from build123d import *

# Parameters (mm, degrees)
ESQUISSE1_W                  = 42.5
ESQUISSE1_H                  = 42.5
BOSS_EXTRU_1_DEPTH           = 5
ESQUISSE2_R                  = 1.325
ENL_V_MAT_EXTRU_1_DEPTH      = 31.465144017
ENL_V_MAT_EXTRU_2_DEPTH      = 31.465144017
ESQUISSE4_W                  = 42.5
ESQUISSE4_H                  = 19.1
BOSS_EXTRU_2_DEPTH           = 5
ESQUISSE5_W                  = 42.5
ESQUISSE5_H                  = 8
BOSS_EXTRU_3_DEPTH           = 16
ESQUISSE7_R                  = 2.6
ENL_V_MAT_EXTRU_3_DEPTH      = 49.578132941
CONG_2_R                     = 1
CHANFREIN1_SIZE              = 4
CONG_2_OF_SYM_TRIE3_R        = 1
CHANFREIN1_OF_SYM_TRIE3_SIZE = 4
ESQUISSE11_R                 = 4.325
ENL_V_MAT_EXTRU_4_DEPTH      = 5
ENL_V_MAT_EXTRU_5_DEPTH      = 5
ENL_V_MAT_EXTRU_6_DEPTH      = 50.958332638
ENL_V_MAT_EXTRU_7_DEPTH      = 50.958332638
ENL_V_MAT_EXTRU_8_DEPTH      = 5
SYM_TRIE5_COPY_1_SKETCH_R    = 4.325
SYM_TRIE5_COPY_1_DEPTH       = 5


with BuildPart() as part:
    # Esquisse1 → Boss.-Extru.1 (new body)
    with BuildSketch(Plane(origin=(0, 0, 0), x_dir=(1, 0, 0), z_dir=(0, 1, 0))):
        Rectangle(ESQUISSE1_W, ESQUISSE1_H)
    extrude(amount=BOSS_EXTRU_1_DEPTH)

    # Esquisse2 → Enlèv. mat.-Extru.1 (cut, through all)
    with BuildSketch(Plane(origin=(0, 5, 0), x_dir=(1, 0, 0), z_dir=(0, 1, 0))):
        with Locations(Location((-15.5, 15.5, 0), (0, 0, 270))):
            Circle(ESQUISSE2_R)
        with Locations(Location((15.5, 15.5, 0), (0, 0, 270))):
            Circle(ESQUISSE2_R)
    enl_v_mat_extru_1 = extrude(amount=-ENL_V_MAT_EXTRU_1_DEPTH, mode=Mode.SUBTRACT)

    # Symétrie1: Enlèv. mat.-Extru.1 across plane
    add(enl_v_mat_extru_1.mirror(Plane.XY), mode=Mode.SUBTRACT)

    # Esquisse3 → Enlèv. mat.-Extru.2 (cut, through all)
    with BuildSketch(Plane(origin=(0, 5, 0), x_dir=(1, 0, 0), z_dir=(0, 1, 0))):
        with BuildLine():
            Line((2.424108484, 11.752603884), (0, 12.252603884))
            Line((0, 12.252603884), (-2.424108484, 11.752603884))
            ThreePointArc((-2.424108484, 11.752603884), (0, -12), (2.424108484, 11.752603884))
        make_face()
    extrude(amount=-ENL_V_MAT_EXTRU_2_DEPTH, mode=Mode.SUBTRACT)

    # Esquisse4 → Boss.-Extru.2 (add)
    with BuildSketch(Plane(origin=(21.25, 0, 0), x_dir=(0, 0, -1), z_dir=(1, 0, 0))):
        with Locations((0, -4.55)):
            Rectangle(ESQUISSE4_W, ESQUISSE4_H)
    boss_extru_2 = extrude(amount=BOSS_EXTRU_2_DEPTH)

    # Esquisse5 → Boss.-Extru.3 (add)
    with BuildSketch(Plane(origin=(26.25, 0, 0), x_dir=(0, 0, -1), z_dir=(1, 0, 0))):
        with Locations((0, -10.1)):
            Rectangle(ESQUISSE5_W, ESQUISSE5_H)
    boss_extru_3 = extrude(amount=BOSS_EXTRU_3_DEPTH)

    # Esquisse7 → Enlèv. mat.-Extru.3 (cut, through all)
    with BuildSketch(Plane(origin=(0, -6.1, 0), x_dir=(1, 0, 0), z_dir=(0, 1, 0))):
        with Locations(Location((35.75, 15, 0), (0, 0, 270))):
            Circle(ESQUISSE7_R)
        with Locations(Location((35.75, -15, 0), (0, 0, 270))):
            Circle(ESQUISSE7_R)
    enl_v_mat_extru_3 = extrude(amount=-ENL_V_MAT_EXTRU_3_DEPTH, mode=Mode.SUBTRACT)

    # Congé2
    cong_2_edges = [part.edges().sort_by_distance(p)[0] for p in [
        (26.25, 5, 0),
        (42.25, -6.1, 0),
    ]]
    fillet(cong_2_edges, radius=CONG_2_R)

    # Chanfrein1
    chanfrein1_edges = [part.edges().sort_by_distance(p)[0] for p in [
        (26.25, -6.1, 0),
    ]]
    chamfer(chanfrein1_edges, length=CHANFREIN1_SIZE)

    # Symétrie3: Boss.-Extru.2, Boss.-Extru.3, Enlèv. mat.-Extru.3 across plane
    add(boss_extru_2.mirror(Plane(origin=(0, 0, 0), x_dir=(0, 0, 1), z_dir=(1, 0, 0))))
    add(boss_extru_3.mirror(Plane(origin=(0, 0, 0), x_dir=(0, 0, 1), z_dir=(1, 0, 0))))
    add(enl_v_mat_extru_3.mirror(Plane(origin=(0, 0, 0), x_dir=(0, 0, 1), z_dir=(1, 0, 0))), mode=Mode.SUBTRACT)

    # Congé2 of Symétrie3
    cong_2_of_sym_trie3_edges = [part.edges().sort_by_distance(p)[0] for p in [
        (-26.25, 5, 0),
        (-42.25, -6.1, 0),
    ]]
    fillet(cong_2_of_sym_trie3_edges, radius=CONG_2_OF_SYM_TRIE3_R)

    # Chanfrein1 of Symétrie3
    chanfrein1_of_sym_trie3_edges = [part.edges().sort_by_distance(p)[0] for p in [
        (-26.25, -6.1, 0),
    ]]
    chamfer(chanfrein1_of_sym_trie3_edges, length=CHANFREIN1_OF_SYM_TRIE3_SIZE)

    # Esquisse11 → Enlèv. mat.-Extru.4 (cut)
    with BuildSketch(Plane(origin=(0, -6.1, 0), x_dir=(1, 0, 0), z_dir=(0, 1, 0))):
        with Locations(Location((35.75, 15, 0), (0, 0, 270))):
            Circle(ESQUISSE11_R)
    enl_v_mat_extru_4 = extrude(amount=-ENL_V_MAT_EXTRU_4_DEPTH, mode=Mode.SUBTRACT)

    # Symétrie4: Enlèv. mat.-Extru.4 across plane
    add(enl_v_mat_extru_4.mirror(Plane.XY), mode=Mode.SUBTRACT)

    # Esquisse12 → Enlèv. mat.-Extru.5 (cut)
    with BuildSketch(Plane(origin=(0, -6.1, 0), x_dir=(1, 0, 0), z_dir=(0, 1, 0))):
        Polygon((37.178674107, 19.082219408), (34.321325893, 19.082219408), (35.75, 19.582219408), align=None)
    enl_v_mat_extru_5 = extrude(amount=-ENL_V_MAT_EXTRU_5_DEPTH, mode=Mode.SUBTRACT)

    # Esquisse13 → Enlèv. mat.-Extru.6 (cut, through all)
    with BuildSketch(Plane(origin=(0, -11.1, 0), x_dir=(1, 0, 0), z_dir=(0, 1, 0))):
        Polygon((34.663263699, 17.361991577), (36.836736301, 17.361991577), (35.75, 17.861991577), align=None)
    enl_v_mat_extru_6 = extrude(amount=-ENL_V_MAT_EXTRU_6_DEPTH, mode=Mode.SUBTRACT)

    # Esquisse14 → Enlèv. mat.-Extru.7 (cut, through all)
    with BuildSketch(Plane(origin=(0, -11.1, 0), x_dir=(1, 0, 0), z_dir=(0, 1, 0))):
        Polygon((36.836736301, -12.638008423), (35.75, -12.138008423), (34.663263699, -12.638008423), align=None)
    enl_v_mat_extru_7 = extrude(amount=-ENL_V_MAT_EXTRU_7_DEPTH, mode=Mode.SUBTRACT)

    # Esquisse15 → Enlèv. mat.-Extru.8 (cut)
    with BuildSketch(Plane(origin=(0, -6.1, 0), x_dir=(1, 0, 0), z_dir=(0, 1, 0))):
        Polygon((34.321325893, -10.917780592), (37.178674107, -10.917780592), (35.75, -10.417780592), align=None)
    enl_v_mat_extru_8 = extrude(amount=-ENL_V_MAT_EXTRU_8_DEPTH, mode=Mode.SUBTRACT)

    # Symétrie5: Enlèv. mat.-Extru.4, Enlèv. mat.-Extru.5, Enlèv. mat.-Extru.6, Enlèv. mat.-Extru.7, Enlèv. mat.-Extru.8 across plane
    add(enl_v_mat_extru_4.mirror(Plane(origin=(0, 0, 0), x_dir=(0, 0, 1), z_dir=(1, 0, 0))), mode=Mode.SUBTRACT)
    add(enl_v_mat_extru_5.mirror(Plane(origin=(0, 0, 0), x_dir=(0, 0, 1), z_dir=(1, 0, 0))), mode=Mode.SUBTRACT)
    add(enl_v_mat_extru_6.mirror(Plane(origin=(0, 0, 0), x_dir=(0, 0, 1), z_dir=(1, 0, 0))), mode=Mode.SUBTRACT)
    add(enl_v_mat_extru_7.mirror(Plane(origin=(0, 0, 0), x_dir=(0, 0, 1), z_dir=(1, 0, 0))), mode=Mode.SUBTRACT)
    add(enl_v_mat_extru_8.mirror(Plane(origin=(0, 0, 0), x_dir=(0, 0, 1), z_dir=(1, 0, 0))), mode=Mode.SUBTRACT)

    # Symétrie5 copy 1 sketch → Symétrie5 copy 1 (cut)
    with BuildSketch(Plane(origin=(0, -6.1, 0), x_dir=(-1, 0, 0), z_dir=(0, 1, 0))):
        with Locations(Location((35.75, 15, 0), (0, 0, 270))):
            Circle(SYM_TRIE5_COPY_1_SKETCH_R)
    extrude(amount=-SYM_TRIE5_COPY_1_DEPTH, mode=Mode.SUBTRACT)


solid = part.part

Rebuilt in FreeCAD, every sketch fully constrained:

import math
import FreeCAD as App
import Part
import Sketcher
from FreeCAD import Vector
Q = App.Units.Quantity


def edges_at(feature, points):
    """Names of the edges that pass closest to the given points."""
    edges = feature.Shape.Edges
    near = lambda p: min(range(len(edges)), key=lambda i: edges[i].distToShape(Part.Vertex(*p))[0])
    return sorted({f"Edge{near(p) + 1}" for p in points})

doc = App.newDocument("Part")
body = doc.addObject("PartDesign::Body", "Body")

# Sketch on XZ plane
sketch1 = body.newObject("Sketcher::SketchObject", "Sketch")
sketch1.AttachmentSupport = (doc.getObject("XZ_Plane"), [""])
sketch1.MapMode = "FlatFace"
sketch1.addGeometry([
    Part.LineSegment(Vector(-21.25, -21.25, 0), Vector(-21.25, 21.25, 0)),
    Part.LineSegment(Vector(-21.25, 21.25, 0), Vector(21.25, 21.25, 0)),
    Part.LineSegment(Vector(21.25, 21.25, 0), Vector(21.25, -21.25, 0)),
    Part.LineSegment(Vector(21.25, -21.25, 0), Vector(-21.25, -21.25, 0)),
], False)
sketch1.addConstraint([
    Sketcher.Constraint("Coincident", 0, 2, 1, 1),
    Sketcher.Constraint("Coincident", 1, 2, 2, 1),
    Sketcher.Constraint("Coincident", 2, 2, 3, 1),
    Sketcher.Constraint("Coincident", 3, 2, 0, 1),
    Sketcher.Constraint("Vertical", 0),
    Sketcher.Constraint("Horizontal", 1),
    Sketcher.Constraint("Vertical", 2),
    Sketcher.Constraint("Horizontal", 3),
    Sketcher.Constraint("Symmetric", 0, 2, 2, 2, -1, 1),
    Sketcher.Constraint("Equal", 3, 0),
    Sketcher.Constraint("DistanceX", 1, 1, 1, 2, Q("42.5 mm")),
])
pad1 = body.newObject("PartDesign::Pad", "Pad")
pad1.Profile = sketch1
pad1.Length = 5
pad1.Reversed = True

# Sketch on XZ plane
sketch2 = body.newObject("Sketcher::SketchObject", "Sketch001")
sketch2.AttachmentSupport = (doc.getObject("XZ_Plane"), [""])
sketch2.MapMode = "FlatFace"
sketch2.AttachmentOffset = App.Placement(Vector(0, 0, -5), App.Rotation())
sketch2.addGeometry([
    Part.Circle(Vector(-15.5, -15.5, 0), Vector(0, 0, 1), 1.325),
    Part.Circle(Vector(15.5, -15.5, 0), Vector(0, 0, 1), 1.325),
], False)
sketch2.addConstraint([
    Sketcher.Constraint("Equal", 0, 1),
    Sketcher.Constraint("Symmetric", 0, 3, 1, 3, -2),
    Sketcher.Constraint("Diameter", 0, Q("2.65 mm")),
    Sketcher.Constraint("DistanceX", 0, 3, 1, 3, Q("31 mm")),
    Sketcher.Constraint("DistanceY", 0, 3, -1, 1, Q("15.5 mm")),
])
pocket1 = body.newObject("PartDesign::Pocket", "Pocket")
pocket1.Profile = sketch2
pocket1.Type = "ThroughAll"
pocket1.Reversed = True
doc.recompute()

mirrored = body.newObject("PartDesign::Mirrored", "Mirrored")
mirrored.Originals = [pocket1]
mirrored.MirrorPlane = (doc.getObject("XY_Plane"), [""])
body.Tip = mirrored

# Sketch on XZ plane
sketch3 = body.newObject("Sketcher::SketchObject", "Sketch002")
sketch3.AttachmentSupport = (doc.getObject("XZ_Plane"), [""])
sketch3.MapMode = "FlatFace"
sketch3.AttachmentOffset = App.Placement(Vector(0, 0, -5), App.Rotation())
sketch3.addGeometry([
    Part.LineSegment(Vector(2.424108, -11.752604, 0), Vector(0, -12.252604, 0)),
    Part.LineSegment(Vector(0, -12.252604, 0), Vector(-2.424108, -11.752604, 0)),
    Part.ArcOfCircle(Part.Circle(Vector(0, 0, 0), Vector(0, 0, 1), 12), math.radians(-78.345533), math.radians(258.345533)),
], False)
sketch3.addConstraint([
    Sketcher.Constraint("Coincident", 0, 2, 1, 1),
    Sketcher.Constraint("Tangent", 1, 2, 2, 2),
    Sketcher.Constraint("Tangent", 2, 1, 0, 1),
    Sketcher.Constraint("Coincident", 2, 3, -1, 1),
    Sketcher.Constraint("PointOnObject", 0, 2, -2),
    Sketcher.Constraint("Radius", 2, Q("12 mm")),
    Sketcher.Constraint("DistanceY", 0, 2, 1, 2, Q("0.5 mm")),
])
pocket2 = body.newObject("PartDesign::Pocket", "Pocket001")
pocket2.Profile = sketch3
pocket2.Type = "ThroughAll"
pocket2.Reversed = True

# Sketch on YZ plane
sketch4 = body.newObject("Sketcher::SketchObject", "Sketch003")
sketch4.AttachmentSupport = (doc.getObject("YZ_Plane"), [""])
sketch4.MapMode = "FlatFace"
sketch4.AttachmentOffset = App.Placement(Vector(0, 0, 21.25), App.Rotation())
sketch4.addGeometry([
    Part.LineSegment(Vector(5, 21.25, 0), Vector(-14.1, 21.25, 0)),
    Part.LineSegment(Vector(-14.1, 21.25, 0), Vector(-14.1, -21.25, 0)),
    Part.LineSegment(Vector(-14.1, -21.25, 0), Vector(5, -21.25, 0)),
    Part.LineSegment(Vector(5, -21.25, 0), Vector(5, 21.25, 0)),
], False)
sketch4.addConstraint([
    Sketcher.Constraint("Coincident", 0, 2, 1, 1),
    Sketcher.Constraint("Coincident", 1, 2, 2, 1),
    Sketcher.Constraint("Coincident", 2, 2, 3, 1),
    Sketcher.Constraint("Coincident", 3, 2, 0, 1),
    Sketcher.Constraint("Horizontal", 0),
    Sketcher.Constraint("Vertical", 1),
    Sketcher.Constraint("Horizontal", 2),
    Sketcher.Constraint("Vertical", 3),
    Sketcher.Constraint("DistanceX", 0, 2, 0, 1, Q("19.1 mm")),
    Sketcher.Constraint("DistanceY", 1, 2, 1, 1, Q("42.5 mm")),
    Sketcher.Constraint("DistanceX", -1, 1, 2, 2, Q("5 mm")),
    Sketcher.Constraint("DistanceY", -1, 1, 0, 2, Q("21.25 mm")),
])
pad2 = body.newObject("PartDesign::Pad", "Pad001")
pad2.Profile = sketch4
pad2.Length = 5

# Sketch on YZ plane
sketch5 = body.newObject("Sketcher::SketchObject", "Sketch004")
sketch5.AttachmentSupport = (doc.getObject("YZ_Plane"), [""])
sketch5.MapMode = "FlatFace"
sketch5.AttachmentOffset = App.Placement(Vector(0, 0, 26.25), App.Rotation())
sketch5.addGeometry([
    Part.LineSegment(Vector(-6.1, 21.25, 0), Vector(-14.1, 21.25, 0)),
    Part.LineSegment(Vector(-14.1, 21.25, 0), Vector(-14.1, -21.25, 0)),
    Part.LineSegment(Vector(-14.1, -21.25, 0), Vector(-6.1, -21.25, 0)),
    Part.LineSegment(Vector(-6.1, -21.25, 0), Vector(-6.1, 21.25, 0)),
], False)
sketch5.addConstraint([
    Sketcher.Constraint("Coincident", 0, 2, 1, 1),
    Sketcher.Constraint("Coincident", 1, 2, 2, 1),
    Sketcher.Constraint("Coincident", 2, 2, 3, 1),
    Sketcher.Constraint("Coincident", 3, 2, 0, 1),
    Sketcher.Constraint("Horizontal", 0),
    Sketcher.Constraint("Vertical", 1),
    Sketcher.Constraint("Horizontal", 2),
    Sketcher.Constraint("Vertical", 3),
    Sketcher.Constraint("DistanceX", 0, 2, 0, 1, Q("8 mm")),
    Sketcher.Constraint("DistanceY", 1, 2, 1, 1, Q("42.5 mm")),
    Sketcher.Constraint("DistanceX", 0, 2, -1, 1, Q("14.1 mm")),
    Sketcher.Constraint("DistanceY", -1, 1, 0, 2, Q("21.25 mm")),
])
pad3 = body.newObject("PartDesign::Pad", "Pad002")
pad3.Profile = sketch5
pad3.Length = 16

# Sketch on XZ plane
sketch6 = body.newObject("Sketcher::SketchObject", "Sketch005")
sketch6.AttachmentSupport = (doc.getObject("XZ_Plane"), [""])
sketch6.MapMode = "FlatFace"
sketch6.AttachmentOffset = App.Placement(Vector(0, 0, 6.1), App.Rotation())
sketch6.addGeometry([
    Part.Circle(Vector(35.75, -15, 0), Vector(0, 0, 1), 2.6),
    Part.Circle(Vector(35.75, 15, 0), Vector(0, 0, 1), 2.6),
], False)
sketch6.addConstraint([
    Sketcher.Constraint("Equal", 0, 1),
    Sketcher.Constraint("Symmetric", 0, 3, 1, 3, -1),
    Sketcher.Constraint("Diameter", 0, Q("5.2 mm")),
    Sketcher.Constraint("DistanceY", 0, 3, -1, 1, Q("15 mm")),
    Sketcher.Constraint("DistanceX", -1, 1, 0, 3, Q("35.75 mm")),
])
pocket3 = body.newObject("PartDesign::Pocket", "Pocket002")
pocket3.Profile = sketch6
pocket3.Type = "ThroughAll"
pocket3.Reversed = True
doc.recompute()

fillet = body.newObject("PartDesign::Fillet", "Fillet")
fillet.Base = (pocket3, edges_at(pocket3, [(26.25, 5, 0), (42.25, -6.1, 0)]))
fillet.Radius = 1
doc.recompute()

chamfer = body.newObject("PartDesign::Chamfer", "Chamfer")
chamfer.Base = (fillet, edges_at(fillet, [(26.25, -6.1, 0)]))
chamfer.Size = 4
doc.recompute()

mirrored2 = body.newObject("PartDesign::Mirrored", "Mirrored001")
mirrored2.Originals = [pad2, pad3, pocket3]
mirrored2.MirrorPlane = (doc.getObject("YZ_Plane"), [""])
body.Tip = mirrored2
doc.recompute()

fillet2 = body.newObject("PartDesign::Fillet", "Fillet001")
fillet2.Base = (mirrored2, edges_at(mirrored2, [(-26.25, 5, 0), (-42.25, -6.1, 0)]))
fillet2.Radius = 1
doc.recompute()

chamfer2 = body.newObject("PartDesign::Chamfer", "Chamfer001")
chamfer2.Base = (fillet2, edges_at(fillet2, [(-26.25, -6.1, 0)]))
chamfer2.Size = 4

# Sketch on XZ plane
sketch7 = body.newObject("Sketcher::SketchObject", "Sketch006")
sketch7.AttachmentSupport = (doc.getObject("XZ_Plane"), [""])
sketch7.MapMode = "FlatFace"
sketch7.AttachmentOffset = App.Placement(Vector(0, 0, 6.1), App.Rotation())
sketch7.addGeometry(Part.Circle(Vector(35.75, -15, 0), Vector(0, 0, 1), 4.325), False)
sketch7.addConstraint([
    Sketcher.Constraint("Diameter", 0, Q("8.65 mm")),
    Sketcher.Constraint("DistanceY", 0, 3, -1, 1, Q("15 mm")),
    Sketcher.Constraint("DistanceX", -1, 1, 0, 3, Q("35.75 mm")),
])
pocket4 = body.newObject("PartDesign::Pocket", "Pocket003")
pocket4.Profile = sketch7
pocket4.Length = 5
pocket4.Reversed = True
doc.recompute()

mirrored3 = body.newObject("PartDesign::Mirrored", "Mirrored002")
mirrored3.Originals = [pocket4]
mirrored3.MirrorPlane = (doc.getObject("XY_Plane"), [""])
body.Tip = mirrored3

# Sketch on XZ plane
sketch8 = body.newObject("Sketcher::SketchObject", "Sketch007")
sketch8.AttachmentSupport = (doc.getObject("XZ_Plane"), [""])
sketch8.MapMode = "FlatFace"
sketch8.AttachmentOffset = App.Placement(Vector(0, 0, 6.1), App.Rotation())
sketch8.addGeometry([
    Part.LineSegment(Vector(34.321326, -19.082219, 0), Vector(37.178674, -19.082219, 0)),
    Part.LineSegment(Vector(37.178674, -19.082219, 0), Vector(35.75, -19.582219, 0)),
    Part.LineSegment(Vector(35.75, -19.582219, 0), Vector(34.321326, -19.082219, 0)),
], False)
sketch8.addConstraint([
    Sketcher.Constraint("Coincident", 0, 2, 1, 1),
    Sketcher.Constraint("Coincident", 1, 2, 2, 1),
    Sketcher.Constraint("Coincident", 2, 2, 0, 1),
    Sketcher.Constraint("Horizontal", 0),
    Sketcher.Constraint("Equal", 1, 2),
    Sketcher.Constraint("DistanceY", 1, 2, 0, 2, Q("0.5 mm")),
    Sketcher.Constraint("DistanceX", -1, 1, 1, 2, Q("35.75 mm")),
    Sketcher.Constraint("DistanceX", 0, 1, 0, 2, Q("2.857348 mm")),
    Sketcher.Constraint("DistanceY", 0, 2, -1, 1, Q("19.082219 mm")),
])
pocket5 = body.newObject("PartDesign::Pocket", "Pocket004")
pocket5.Profile = sketch8
pocket5.Length = 5
pocket5.Reversed = True

# Sketch on XZ plane
sketch9 = body.newObject("Sketcher::SketchObject", "Sketch008")
sketch9.AttachmentSupport = (doc.getObject("XZ_Plane"), [""])
sketch9.MapMode = "FlatFace"
sketch9.AttachmentOffset = App.Placement(Vector(0, 0, 11.1), App.Rotation())
sketch9.addGeometry([
    Part.LineSegment(Vector(34.663264, -17.361992, 0), Vector(36.836736, -17.361992, 0)),
    Part.LineSegment(Vector(36.836736, -17.361992, 0), Vector(35.75, -17.861992, 0)),
    Part.LineSegment(Vector(35.75, -17.861992, 0), Vector(34.663264, -17.361992, 0)),
], False)
sketch9.addConstraint([
    Sketcher.Constraint("Coincident", 0, 2, 1, 1),
    Sketcher.Constraint("Coincident", 1, 2, 2, 1),
    Sketcher.Constraint("Coincident", 2, 2, 0, 1),
    Sketcher.Constraint("Horizontal", 0),
    Sketcher.Constraint("Equal", 1, 2),
    Sketcher.Constraint("DistanceY", 1, 2, 0, 2, Q("0.5 mm")),
    Sketcher.Constraint("DistanceX", -1, 1, 1, 2, Q("35.75 mm")),
    Sketcher.Constraint("DistanceX", 0, 1, 0, 2, Q("2.173473 mm")),
    Sketcher.Constraint("DistanceY", 0, 2, -1, 1, Q("17.361992 mm")),
])
pocket6 = body.newObject("PartDesign::Pocket", "Pocket005")
pocket6.Profile = sketch9
pocket6.Type = "ThroughAll"
pocket6.Reversed = True

# Sketch on XZ plane
sketch10 = body.newObject("Sketcher::SketchObject", "Sketch009")
sketch10.AttachmentSupport = (doc.getObject("XZ_Plane"), [""])
sketch10.MapMode = "FlatFace"
sketch10.AttachmentOffset = App.Placement(Vector(0, 0, 11.1), App.Rotation())
sketch10.addGeometry([
    Part.LineSegment(Vector(36.836736, 12.638008, 0), Vector(35.75, 12.138008, 0)),
    Part.LineSegment(Vector(35.75, 12.138008, 0), Vector(34.663264, 12.638008, 0)),
    Part.LineSegment(Vector(34.663264, 12.638008, 0), Vector(36.836736, 12.638008, 0)),
], False)
sketch10.addConstraint([
    Sketcher.Constraint("Coincident", 0, 2, 1, 1),
    Sketcher.Constraint("Coincident", 1, 2, 2, 1),
    Sketcher.Constraint("Coincident", 2, 2, 0, 1),
    Sketcher.Constraint("Horizontal", 2),
    Sketcher.Constraint("Equal", 0, 1),
    Sketcher.Constraint("DistanceY", 0, 2, 1, 2, Q("0.5 mm")),
    Sketcher.Constraint("DistanceX", -1, 1, 0, 2, Q("35.75 mm")),
    Sketcher.Constraint("DistanceX", 2, 1, 2, 2, Q("2.173473 mm")),
    Sketcher.Constraint("DistanceY", -1, 1, 0, 2, Q("12.138008 mm")),
])
pocket7 = body.newObject("PartDesign::Pocket", "Pocket006")
pocket7.Profile = sketch10
pocket7.Type = "ThroughAll"
pocket7.Reversed = True

# Sketch on XZ plane
sketch11 = body.newObject("Sketcher::SketchObject", "Sketch010")
sketch11.AttachmentSupport = (doc.getObject("XZ_Plane"), [""])
sketch11.MapMode = "FlatFace"
sketch11.AttachmentOffset = App.Placement(Vector(0, 0, 6.1), App.Rotation())
sketch11.addGeometry([
    Part.LineSegment(Vector(34.321326, 10.917781, 0), Vector(37.178674, 10.917781, 0)),
    Part.LineSegment(Vector(37.178674, 10.917781, 0), Vector(35.75, 10.417781, 0)),
    Part.LineSegment(Vector(35.75, 10.417781, 0), Vector(34.321326, 10.917781, 0)),
], False)
sketch11.addConstraint([
    Sketcher.Constraint("Coincident", 0, 2, 1, 1),
    Sketcher.Constraint("Coincident", 1, 2, 2, 1),
    Sketcher.Constraint("Coincident", 2, 2, 0, 1),
    Sketcher.Constraint("Horizontal", 0),
    Sketcher.Constraint("Equal", 1, 2),
    Sketcher.Constraint("DistanceY", 1, 2, 0, 2, Q("0.5 mm")),
    Sketcher.Constraint("DistanceX", -1, 1, 1, 2, Q("35.75 mm")),
    Sketcher.Constraint("DistanceX", 0, 1, 0, 2, Q("2.857348 mm")),
    Sketcher.Constraint("DistanceY", -1, 1, 0, 2, Q("10.917781 mm")),
])
pocket8 = body.newObject("PartDesign::Pocket", "Pocket007")
pocket8.Profile = sketch11
pocket8.Length = 5
pocket8.Reversed = True
doc.recompute()

mirrored4 = body.newObject("PartDesign::Mirrored", "Mirrored003")
mirrored4.Originals = [pocket4, pocket5, pocket6, pocket7, pocket8]
mirrored4.MirrorPlane = (doc.getObject("YZ_Plane"), [""])
body.Tip = mirrored4

# Sketch on XZ plane
sketch12 = body.newObject("Sketcher::SketchObject", "Sketch011")
sketch12.AttachmentSupport = (doc.getObject("XZ_Plane"), [""])
sketch12.MapMode = "FlatFace"
sketch12.AttachmentOffset = App.Placement(Vector(0, 0, 6.1), App.Rotation())
sketch12.addGeometry(Part.Circle(Vector(-35.75, 15, 0), Vector(0, 0, 1), 4.325), False)
sketch12.addConstraint([
    Sketcher.Constraint("Diameter", 0, Q("8.65 mm")),
    Sketcher.Constraint("DistanceY", -1, 1, 0, 3, Q("15 mm")),
    Sketcher.Constraint("DistanceX", 0, 3, -1, 1, Q("35.75 mm")),
])
pocket9 = body.newObject("PartDesign::Pocket", "Pocket008")
pocket9.Profile = sketch12
pocket9.Length = 5
pocket9.Reversed = True

doc.recompute()
